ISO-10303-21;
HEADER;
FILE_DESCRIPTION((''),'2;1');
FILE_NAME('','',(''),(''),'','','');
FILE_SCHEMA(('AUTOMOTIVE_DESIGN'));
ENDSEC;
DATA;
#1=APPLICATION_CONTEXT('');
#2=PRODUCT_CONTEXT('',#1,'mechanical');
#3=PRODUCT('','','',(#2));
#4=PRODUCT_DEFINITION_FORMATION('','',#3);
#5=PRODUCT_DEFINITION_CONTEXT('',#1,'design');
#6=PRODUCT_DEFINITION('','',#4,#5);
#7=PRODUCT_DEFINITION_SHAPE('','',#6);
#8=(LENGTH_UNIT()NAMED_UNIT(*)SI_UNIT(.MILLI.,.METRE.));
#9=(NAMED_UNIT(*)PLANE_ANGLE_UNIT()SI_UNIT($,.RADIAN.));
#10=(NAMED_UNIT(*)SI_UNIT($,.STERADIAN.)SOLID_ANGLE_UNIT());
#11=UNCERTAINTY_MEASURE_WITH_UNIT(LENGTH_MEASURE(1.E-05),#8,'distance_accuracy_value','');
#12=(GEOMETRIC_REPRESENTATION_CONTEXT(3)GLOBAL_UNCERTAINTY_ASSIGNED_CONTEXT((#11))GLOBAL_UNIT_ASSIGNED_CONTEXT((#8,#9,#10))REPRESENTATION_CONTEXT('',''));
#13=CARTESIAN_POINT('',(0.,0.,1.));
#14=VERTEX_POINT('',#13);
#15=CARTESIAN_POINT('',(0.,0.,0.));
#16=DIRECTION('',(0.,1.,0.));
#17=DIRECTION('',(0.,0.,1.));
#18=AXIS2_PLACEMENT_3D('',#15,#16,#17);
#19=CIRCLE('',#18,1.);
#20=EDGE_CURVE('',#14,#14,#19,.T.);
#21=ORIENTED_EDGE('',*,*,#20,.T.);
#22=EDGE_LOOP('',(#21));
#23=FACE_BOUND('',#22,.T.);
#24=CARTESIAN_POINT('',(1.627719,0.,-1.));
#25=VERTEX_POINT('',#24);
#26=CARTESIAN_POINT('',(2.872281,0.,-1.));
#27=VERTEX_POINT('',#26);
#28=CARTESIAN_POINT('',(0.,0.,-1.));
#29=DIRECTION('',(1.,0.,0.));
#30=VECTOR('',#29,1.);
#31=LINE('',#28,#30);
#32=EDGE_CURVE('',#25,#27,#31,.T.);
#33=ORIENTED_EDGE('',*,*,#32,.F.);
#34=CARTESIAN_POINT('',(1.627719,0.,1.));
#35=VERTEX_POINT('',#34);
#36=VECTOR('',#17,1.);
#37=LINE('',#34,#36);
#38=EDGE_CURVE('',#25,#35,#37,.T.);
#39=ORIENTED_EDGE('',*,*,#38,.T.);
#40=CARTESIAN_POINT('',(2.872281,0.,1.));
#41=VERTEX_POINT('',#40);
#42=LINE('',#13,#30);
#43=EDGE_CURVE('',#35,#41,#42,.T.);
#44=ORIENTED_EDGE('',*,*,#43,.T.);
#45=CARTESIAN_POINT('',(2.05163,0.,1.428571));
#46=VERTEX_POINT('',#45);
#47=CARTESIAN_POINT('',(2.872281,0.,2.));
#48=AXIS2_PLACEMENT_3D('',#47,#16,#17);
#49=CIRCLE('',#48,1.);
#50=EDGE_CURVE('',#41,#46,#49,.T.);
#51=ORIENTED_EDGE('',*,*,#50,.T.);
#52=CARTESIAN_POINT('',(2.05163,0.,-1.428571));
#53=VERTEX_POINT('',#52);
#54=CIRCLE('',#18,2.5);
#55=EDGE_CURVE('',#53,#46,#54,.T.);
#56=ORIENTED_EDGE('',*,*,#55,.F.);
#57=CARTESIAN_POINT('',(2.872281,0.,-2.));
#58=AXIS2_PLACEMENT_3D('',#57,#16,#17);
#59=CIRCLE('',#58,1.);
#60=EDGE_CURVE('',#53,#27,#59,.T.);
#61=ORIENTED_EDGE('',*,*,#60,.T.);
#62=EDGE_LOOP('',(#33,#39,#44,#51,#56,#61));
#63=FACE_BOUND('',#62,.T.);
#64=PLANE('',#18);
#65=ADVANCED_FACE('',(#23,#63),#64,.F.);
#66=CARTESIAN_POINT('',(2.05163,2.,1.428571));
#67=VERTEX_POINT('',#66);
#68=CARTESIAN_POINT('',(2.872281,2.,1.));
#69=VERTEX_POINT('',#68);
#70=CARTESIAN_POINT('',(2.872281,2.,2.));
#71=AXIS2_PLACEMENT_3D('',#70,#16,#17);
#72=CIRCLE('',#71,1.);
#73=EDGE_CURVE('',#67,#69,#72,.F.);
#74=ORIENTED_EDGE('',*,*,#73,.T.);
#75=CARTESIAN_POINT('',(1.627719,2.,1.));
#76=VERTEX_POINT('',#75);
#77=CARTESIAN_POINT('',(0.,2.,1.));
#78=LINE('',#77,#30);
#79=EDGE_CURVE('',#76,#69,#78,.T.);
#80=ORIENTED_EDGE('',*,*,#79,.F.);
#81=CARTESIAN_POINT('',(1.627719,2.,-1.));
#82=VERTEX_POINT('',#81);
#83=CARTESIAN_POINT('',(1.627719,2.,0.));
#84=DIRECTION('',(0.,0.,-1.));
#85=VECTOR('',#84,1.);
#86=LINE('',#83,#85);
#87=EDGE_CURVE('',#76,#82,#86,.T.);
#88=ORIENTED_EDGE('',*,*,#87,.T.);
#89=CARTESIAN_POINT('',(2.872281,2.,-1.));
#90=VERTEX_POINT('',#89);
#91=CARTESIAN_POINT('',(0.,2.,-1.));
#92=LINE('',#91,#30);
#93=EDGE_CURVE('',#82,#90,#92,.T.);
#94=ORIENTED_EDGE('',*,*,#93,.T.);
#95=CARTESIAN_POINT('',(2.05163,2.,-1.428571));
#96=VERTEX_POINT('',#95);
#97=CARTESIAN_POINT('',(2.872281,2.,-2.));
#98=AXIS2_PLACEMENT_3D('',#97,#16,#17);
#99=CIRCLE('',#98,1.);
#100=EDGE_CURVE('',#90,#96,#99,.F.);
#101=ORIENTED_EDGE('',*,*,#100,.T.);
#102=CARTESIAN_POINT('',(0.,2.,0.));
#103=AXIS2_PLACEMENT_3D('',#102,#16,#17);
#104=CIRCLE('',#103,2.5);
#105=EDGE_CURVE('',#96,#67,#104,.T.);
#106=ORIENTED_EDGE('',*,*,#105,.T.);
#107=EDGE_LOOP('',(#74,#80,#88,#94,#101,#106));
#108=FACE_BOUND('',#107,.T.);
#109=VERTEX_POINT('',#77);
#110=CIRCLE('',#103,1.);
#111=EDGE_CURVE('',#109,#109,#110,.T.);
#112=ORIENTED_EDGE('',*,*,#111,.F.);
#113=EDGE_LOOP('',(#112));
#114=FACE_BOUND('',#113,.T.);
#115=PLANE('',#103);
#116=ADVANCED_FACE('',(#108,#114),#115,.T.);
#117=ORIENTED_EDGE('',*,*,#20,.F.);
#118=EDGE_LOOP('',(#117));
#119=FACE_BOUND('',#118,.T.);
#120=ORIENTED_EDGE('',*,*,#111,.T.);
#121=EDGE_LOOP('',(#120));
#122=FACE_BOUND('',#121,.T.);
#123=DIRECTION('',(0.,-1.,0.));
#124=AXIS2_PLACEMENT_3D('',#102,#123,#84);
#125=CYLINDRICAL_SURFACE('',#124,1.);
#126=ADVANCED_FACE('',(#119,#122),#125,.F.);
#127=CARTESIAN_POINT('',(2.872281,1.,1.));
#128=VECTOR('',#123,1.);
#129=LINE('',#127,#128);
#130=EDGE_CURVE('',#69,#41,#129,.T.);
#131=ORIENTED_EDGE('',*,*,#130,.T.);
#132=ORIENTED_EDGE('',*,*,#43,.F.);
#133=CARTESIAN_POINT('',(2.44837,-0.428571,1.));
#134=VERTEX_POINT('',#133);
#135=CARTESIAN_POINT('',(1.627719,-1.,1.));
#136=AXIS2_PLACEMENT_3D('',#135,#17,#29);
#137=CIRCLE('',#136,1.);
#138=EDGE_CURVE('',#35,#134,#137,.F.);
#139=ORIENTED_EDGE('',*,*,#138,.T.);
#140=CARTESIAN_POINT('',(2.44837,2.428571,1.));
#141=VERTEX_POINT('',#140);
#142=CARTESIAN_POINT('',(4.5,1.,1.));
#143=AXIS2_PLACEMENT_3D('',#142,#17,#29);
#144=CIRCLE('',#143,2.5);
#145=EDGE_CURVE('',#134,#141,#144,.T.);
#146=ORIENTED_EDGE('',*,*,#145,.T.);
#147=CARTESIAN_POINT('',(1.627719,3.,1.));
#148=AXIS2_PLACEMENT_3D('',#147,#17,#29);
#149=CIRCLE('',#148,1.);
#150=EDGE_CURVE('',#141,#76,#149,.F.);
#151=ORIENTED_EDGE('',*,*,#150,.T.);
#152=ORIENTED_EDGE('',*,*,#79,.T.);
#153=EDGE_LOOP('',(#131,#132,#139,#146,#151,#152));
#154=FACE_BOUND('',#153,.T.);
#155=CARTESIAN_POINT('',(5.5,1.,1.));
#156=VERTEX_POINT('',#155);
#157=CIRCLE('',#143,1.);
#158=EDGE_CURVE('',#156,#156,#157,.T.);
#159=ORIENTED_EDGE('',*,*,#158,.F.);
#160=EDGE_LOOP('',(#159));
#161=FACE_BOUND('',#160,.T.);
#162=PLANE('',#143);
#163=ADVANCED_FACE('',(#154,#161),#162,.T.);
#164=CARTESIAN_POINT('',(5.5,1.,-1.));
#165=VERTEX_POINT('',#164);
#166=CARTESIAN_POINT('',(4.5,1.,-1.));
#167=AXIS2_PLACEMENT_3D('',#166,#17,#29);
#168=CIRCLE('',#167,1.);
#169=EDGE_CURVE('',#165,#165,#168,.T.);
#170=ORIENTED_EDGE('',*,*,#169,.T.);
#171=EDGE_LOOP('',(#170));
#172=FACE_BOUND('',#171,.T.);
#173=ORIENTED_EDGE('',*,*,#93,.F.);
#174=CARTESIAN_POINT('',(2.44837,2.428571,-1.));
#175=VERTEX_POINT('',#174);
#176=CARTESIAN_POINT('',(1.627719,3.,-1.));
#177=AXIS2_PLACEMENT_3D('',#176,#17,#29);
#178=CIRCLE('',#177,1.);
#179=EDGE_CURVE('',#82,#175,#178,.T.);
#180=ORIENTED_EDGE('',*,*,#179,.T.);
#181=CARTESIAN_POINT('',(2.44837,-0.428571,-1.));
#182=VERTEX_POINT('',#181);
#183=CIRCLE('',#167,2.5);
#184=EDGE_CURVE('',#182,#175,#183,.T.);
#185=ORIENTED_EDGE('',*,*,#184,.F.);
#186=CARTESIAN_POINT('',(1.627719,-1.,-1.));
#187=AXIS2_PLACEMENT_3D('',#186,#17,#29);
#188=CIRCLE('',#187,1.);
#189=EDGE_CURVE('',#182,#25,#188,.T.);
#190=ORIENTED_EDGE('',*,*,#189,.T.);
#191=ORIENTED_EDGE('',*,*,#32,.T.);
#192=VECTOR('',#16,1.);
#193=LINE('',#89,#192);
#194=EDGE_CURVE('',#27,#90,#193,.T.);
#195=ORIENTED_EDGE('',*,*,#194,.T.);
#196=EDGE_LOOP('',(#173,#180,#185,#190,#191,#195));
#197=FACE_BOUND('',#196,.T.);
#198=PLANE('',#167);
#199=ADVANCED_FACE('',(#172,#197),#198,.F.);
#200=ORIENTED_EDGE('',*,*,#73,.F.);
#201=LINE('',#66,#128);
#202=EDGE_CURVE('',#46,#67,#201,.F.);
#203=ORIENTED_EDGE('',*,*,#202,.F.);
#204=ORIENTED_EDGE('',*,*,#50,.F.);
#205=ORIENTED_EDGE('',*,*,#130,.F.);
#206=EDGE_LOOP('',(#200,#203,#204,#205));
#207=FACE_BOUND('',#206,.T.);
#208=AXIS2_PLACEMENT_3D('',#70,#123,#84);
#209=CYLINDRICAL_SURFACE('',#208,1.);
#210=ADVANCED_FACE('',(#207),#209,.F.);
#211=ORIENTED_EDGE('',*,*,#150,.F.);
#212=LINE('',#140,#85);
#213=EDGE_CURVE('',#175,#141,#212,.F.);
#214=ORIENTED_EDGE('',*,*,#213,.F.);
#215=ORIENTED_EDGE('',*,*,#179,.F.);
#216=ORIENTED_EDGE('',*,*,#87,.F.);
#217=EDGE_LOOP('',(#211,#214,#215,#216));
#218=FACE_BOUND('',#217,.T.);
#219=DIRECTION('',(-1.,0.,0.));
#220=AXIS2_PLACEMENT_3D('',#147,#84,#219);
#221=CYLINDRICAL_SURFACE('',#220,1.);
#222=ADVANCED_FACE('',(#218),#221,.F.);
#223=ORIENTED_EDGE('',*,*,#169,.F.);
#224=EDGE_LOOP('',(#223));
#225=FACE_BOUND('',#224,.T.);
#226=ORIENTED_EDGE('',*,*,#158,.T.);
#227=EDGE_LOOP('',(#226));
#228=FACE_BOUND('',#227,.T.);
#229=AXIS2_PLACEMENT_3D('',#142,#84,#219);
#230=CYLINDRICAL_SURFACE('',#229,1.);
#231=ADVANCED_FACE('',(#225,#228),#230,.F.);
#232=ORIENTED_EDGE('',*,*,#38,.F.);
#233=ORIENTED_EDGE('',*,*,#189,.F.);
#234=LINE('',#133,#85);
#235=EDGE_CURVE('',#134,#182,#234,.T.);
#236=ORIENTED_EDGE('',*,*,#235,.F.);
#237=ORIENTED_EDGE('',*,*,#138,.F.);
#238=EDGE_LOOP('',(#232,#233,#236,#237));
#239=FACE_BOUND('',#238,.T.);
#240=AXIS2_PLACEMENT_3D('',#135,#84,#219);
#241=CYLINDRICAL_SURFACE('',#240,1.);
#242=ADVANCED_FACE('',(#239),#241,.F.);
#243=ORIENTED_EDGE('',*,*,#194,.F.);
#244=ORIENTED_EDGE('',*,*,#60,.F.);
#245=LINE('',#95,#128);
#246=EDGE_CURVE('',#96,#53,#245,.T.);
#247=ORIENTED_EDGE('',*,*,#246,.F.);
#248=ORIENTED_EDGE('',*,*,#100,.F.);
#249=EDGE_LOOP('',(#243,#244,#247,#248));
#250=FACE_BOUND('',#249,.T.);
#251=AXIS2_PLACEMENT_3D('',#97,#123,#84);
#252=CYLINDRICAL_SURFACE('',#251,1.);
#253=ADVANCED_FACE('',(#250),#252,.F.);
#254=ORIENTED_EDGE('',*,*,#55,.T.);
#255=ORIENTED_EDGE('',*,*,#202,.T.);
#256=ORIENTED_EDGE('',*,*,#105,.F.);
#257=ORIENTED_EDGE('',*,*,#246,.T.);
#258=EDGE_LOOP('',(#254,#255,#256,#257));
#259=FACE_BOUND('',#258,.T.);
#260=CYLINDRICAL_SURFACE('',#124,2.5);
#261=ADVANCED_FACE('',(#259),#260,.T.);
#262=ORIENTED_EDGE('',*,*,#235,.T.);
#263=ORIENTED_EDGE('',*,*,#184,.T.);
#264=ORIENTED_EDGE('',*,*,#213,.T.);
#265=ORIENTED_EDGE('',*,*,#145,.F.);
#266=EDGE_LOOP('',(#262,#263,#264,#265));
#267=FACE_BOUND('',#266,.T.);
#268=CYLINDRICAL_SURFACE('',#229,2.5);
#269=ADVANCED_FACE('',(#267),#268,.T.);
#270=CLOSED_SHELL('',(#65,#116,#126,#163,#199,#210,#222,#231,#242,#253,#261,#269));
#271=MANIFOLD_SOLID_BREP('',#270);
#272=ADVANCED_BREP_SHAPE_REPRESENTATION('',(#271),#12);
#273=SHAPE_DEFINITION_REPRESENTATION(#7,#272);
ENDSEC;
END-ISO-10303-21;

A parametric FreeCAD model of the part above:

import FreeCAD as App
import Part
import Sketcher

V = App.Vector


def edges_at(feature, points):
    """Names of the edges that pass closest to the given points."""
    edges = feature.Shape.Edges
    near = lambda p: min(range(len(edges)), key=lambda i: edges[i].distToShape(Part.Vertex(*p))[0])
    return sorted({f"Edge{near(p) + 1}" for p in points})

doc = App.newDocument("Part")
params = doc.addObject("Spreadsheet::Sheet", "Params")
for row, (alias, value) in enumerate([
    ("sketch1_diameter", "5 mm"),
    ("sketch1_diameter2", "2 mm"),
    ("pad1_length", "2 mm"),
    ("sketch2_diameter", "5 mm"),
    ("sketch2_diameter2", "2 mm"),
    ("pad2_length", "2 mm"),
    ("fillet_radius", "1 mm"),
    ("fillet2_radius", "1 mm"),
    ("fillet3_radius", "1 mm"),
    ("fillet4_radius", "1 mm"),
], start=1):
    params.set(f"A{row}", alias)
    params.set(f"B{row}", "=" + value)
    params.setAlias(f"B{row}", alias)

body = doc.addObject("PartDesign::Body", "Body")

# Sketch on XZ plane
sketch1 = body.newObject("Sketcher::SketchObject", "Sketch")
sketch1.AttachmentSupport = (doc.getObject("XZ_Plane"), [""])
sketch1.MapMode = "FlatFace"
sketch1.addGeometry(Part.Circle(V(0, 0, 0), V(0, 0, 1), 2.5), False)
sketch1.addGeometry(Part.Circle(V(0, 0, 0), V(0, 0, 1), 1), False)
sketch1.addConstraint(Sketcher.Constraint("Coincident", 0, 3, -1, 1))
sketch1.addConstraint(Sketcher.Constraint("Coincident", 1, 3, -1, 1))
sketch1.addConstraint(Sketcher.Constraint("Diameter", 0, 5.0))
sketch1.addConstraint(Sketcher.Constraint("Diameter", 1, 2.0))
sketch1.setExpression("Constraints[2]", "Params.sketch1_diameter")
sketch1.setExpression("Constraints[3]", "Params.sketch1_diameter2")
pad1 = body.newObject("PartDesign::Pad", "Pad")
pad1.Profile = sketch1
pad1.setExpression("Length", "Params.pad1_length")
pad1.Reversed = True

# Sketch on XY plane
sketch2 = body.newObject("Sketcher::SketchObject", "Sketch001")
sketch2.AttachmentSupport = (doc.getObject("XY_Plane"), [""])
sketch2.MapMode = "FlatFace"
sketch2.addGeometry(Part.Circle(V(4.5, 1, 0), V(0, 0, 1), 2.5), False)
sketch2.addGeometry(Part.Circle(V(4.5, 1, 0), V(0, 0, 1), 1), False)
sketch2.addConstraint(Sketcher.Constraint("Coincident", 1, 3, 0, 3))
sketch2.addConstraint(Sketcher.Constraint("Diameter", 0, 5.0))
sketch2.addConstraint(Sketcher.Constraint("Diameter", 1, 2.0))
sketch2.addConstraint(Sketcher.Constraint("DistanceY", -1, 1, 0, 3, 1.0))
sketch2.addConstraint(Sketcher.Constraint("DistanceX", -1, 1, 0, 3, 4.5))
sketch2.setExpression("Constraints[1]", "Params.sketch2_diameter")
sketch2.setExpression("Constraints[2]", "Params.sketch2_diameter2")
pad2 = body.newObject("PartDesign::Pad", "Pad001")
pad2.Profile = sketch2
pad2.setExpression("Length", "Params.pad2_length")
pad2.Midplane = True
doc.recompute()

fillet = body.newObject("PartDesign::Fillet", "Fillet")
fillet.Base = (pad2, edges_at(pad2, [(2.209, 2, 0)]))
fillet.setExpression("Radius", "Params.fillet_radius")
doc.recompute()

fillet2 = body.newObject("PartDesign::Fillet", "Fillet001")
fillet2.Base = (fillet, edges_at(fillet, [(2.209, 0, 0)]))
fillet2.setExpression("Radius", "Params.fillet2_radius")
doc.recompute()

fillet3 = body.newObject("PartDesign::Fillet", "Fillet002")
fillet3.Base = (fillet2, edges_at(fillet2, [(2.291, 1, -1)]))
fillet3.setExpression("Radius", "Params.fillet3_radius")
doc.recompute()

fillet4 = body.newObject("PartDesign::Fillet", "Fillet003")
fillet4.Base = (fillet3, edges_at(fillet3, [(2.291, 1, 1)]))
fillet4.setExpression("Radius", "Params.fillet4_radius")

doc.recompute()
